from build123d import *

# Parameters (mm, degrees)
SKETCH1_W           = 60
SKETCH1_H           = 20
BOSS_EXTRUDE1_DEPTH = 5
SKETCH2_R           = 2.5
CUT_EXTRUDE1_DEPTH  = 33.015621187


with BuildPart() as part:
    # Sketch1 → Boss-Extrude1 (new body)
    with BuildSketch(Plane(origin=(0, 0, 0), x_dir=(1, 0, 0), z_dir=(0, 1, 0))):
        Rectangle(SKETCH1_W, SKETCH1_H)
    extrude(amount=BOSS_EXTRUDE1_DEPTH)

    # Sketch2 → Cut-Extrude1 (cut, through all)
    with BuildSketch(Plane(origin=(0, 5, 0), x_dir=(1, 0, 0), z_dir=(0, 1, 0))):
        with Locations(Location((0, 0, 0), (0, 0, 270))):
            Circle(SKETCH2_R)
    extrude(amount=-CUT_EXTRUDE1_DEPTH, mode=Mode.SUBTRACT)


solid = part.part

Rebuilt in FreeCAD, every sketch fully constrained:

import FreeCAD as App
import Part
import Sketcher

V = App.Vector
Q = App.Units.Quantity

doc = App.newDocument("Part")
body = doc.addObject("PartDesign::Body", "Body")

# Sketch on XZ plane
sketch1 = doc.addObject("Sketcher::SketchObject", "Sketch")
body.addObject(sketch1)
sketch1.AttachmentSupport = (doc.XZ_Plane, [""])
sketch1.MapMode = "FlatFace"
sketch1.addGeometry([
    Part.LineSegment(V(-30, -10, 0), V(-30, 10, 0)),
    Part.LineSegment(V(-30, 10, 0), V(30, 10, 0)),
    Part.LineSegment(V(30, 10, 0), V(30, -10, 0)),
    Part.LineSegment(V(30, -10, 0), V(-30, -10, 0)),
], False)
sketch1.addConstraint([
    Sketcher.Constraint("Coincident", 0, 2, 1, 1),
    Sketcher.Constraint("Coincident", 1, 2, 2, 1),
    Sketcher.Constraint("Coincident", 2, 2, 3, 1),
    Sketcher.Constraint("Coincident", 3, 2, 0, 1),
    Sketcher.Constraint("Vertical", 0),
    Sketcher.Constraint("Horizontal", 1),
    Sketcher.Constraint("Vertical", 2),
    Sketcher.Constraint("Horizontal", 3),
    Sketcher.Constraint("Symmetric", 0, 2, 2, 2, -1, 1),
    Sketcher.Constraint("DistanceX", 1, 1, 1, 2, Q("60 mm")),
    Sketcher.Constraint("DistanceY", 0, 1, 0, 2, Q("20 mm")),
])
pad1 = doc.addObject("PartDesign::Pad", "Pad")
body.addObject(pad1)
pad1.Profile = sketch1
pad1.Length = 5
pad1.Reversed = True

# Sketch on XZ plane
sketch2 = doc.addObject("Sketcher::SketchObject", "Sketch001")
body.addObject(sketch2)
sketch2.AttachmentSupport = (doc.XZ_Plane, [""])
sketch2.MapMode = "FlatFace"
sketch2.AttachmentOffset = App.Placement(V(0, 0, -5), App.Rotation())
sketch2.addGeometry(Part.Circle(V(0, 0, 0), V(0, 0, 1), 2.5), False)
sketch2.addConstraint([
    Sketcher.Constraint("Coincident", 0, 3, -1, 1),
    Sketcher.Constraint("Diameter", 0, Q("5 mm")),
])
pocket1 = doc.addObject("PartDesign::Pocket", "Pocket")
body.addObject(pocket1)
pocket1.Profile = sketch2
pocket1.Type = "ThroughAll"
pocket1.Reversed = True

doc.recompute()
